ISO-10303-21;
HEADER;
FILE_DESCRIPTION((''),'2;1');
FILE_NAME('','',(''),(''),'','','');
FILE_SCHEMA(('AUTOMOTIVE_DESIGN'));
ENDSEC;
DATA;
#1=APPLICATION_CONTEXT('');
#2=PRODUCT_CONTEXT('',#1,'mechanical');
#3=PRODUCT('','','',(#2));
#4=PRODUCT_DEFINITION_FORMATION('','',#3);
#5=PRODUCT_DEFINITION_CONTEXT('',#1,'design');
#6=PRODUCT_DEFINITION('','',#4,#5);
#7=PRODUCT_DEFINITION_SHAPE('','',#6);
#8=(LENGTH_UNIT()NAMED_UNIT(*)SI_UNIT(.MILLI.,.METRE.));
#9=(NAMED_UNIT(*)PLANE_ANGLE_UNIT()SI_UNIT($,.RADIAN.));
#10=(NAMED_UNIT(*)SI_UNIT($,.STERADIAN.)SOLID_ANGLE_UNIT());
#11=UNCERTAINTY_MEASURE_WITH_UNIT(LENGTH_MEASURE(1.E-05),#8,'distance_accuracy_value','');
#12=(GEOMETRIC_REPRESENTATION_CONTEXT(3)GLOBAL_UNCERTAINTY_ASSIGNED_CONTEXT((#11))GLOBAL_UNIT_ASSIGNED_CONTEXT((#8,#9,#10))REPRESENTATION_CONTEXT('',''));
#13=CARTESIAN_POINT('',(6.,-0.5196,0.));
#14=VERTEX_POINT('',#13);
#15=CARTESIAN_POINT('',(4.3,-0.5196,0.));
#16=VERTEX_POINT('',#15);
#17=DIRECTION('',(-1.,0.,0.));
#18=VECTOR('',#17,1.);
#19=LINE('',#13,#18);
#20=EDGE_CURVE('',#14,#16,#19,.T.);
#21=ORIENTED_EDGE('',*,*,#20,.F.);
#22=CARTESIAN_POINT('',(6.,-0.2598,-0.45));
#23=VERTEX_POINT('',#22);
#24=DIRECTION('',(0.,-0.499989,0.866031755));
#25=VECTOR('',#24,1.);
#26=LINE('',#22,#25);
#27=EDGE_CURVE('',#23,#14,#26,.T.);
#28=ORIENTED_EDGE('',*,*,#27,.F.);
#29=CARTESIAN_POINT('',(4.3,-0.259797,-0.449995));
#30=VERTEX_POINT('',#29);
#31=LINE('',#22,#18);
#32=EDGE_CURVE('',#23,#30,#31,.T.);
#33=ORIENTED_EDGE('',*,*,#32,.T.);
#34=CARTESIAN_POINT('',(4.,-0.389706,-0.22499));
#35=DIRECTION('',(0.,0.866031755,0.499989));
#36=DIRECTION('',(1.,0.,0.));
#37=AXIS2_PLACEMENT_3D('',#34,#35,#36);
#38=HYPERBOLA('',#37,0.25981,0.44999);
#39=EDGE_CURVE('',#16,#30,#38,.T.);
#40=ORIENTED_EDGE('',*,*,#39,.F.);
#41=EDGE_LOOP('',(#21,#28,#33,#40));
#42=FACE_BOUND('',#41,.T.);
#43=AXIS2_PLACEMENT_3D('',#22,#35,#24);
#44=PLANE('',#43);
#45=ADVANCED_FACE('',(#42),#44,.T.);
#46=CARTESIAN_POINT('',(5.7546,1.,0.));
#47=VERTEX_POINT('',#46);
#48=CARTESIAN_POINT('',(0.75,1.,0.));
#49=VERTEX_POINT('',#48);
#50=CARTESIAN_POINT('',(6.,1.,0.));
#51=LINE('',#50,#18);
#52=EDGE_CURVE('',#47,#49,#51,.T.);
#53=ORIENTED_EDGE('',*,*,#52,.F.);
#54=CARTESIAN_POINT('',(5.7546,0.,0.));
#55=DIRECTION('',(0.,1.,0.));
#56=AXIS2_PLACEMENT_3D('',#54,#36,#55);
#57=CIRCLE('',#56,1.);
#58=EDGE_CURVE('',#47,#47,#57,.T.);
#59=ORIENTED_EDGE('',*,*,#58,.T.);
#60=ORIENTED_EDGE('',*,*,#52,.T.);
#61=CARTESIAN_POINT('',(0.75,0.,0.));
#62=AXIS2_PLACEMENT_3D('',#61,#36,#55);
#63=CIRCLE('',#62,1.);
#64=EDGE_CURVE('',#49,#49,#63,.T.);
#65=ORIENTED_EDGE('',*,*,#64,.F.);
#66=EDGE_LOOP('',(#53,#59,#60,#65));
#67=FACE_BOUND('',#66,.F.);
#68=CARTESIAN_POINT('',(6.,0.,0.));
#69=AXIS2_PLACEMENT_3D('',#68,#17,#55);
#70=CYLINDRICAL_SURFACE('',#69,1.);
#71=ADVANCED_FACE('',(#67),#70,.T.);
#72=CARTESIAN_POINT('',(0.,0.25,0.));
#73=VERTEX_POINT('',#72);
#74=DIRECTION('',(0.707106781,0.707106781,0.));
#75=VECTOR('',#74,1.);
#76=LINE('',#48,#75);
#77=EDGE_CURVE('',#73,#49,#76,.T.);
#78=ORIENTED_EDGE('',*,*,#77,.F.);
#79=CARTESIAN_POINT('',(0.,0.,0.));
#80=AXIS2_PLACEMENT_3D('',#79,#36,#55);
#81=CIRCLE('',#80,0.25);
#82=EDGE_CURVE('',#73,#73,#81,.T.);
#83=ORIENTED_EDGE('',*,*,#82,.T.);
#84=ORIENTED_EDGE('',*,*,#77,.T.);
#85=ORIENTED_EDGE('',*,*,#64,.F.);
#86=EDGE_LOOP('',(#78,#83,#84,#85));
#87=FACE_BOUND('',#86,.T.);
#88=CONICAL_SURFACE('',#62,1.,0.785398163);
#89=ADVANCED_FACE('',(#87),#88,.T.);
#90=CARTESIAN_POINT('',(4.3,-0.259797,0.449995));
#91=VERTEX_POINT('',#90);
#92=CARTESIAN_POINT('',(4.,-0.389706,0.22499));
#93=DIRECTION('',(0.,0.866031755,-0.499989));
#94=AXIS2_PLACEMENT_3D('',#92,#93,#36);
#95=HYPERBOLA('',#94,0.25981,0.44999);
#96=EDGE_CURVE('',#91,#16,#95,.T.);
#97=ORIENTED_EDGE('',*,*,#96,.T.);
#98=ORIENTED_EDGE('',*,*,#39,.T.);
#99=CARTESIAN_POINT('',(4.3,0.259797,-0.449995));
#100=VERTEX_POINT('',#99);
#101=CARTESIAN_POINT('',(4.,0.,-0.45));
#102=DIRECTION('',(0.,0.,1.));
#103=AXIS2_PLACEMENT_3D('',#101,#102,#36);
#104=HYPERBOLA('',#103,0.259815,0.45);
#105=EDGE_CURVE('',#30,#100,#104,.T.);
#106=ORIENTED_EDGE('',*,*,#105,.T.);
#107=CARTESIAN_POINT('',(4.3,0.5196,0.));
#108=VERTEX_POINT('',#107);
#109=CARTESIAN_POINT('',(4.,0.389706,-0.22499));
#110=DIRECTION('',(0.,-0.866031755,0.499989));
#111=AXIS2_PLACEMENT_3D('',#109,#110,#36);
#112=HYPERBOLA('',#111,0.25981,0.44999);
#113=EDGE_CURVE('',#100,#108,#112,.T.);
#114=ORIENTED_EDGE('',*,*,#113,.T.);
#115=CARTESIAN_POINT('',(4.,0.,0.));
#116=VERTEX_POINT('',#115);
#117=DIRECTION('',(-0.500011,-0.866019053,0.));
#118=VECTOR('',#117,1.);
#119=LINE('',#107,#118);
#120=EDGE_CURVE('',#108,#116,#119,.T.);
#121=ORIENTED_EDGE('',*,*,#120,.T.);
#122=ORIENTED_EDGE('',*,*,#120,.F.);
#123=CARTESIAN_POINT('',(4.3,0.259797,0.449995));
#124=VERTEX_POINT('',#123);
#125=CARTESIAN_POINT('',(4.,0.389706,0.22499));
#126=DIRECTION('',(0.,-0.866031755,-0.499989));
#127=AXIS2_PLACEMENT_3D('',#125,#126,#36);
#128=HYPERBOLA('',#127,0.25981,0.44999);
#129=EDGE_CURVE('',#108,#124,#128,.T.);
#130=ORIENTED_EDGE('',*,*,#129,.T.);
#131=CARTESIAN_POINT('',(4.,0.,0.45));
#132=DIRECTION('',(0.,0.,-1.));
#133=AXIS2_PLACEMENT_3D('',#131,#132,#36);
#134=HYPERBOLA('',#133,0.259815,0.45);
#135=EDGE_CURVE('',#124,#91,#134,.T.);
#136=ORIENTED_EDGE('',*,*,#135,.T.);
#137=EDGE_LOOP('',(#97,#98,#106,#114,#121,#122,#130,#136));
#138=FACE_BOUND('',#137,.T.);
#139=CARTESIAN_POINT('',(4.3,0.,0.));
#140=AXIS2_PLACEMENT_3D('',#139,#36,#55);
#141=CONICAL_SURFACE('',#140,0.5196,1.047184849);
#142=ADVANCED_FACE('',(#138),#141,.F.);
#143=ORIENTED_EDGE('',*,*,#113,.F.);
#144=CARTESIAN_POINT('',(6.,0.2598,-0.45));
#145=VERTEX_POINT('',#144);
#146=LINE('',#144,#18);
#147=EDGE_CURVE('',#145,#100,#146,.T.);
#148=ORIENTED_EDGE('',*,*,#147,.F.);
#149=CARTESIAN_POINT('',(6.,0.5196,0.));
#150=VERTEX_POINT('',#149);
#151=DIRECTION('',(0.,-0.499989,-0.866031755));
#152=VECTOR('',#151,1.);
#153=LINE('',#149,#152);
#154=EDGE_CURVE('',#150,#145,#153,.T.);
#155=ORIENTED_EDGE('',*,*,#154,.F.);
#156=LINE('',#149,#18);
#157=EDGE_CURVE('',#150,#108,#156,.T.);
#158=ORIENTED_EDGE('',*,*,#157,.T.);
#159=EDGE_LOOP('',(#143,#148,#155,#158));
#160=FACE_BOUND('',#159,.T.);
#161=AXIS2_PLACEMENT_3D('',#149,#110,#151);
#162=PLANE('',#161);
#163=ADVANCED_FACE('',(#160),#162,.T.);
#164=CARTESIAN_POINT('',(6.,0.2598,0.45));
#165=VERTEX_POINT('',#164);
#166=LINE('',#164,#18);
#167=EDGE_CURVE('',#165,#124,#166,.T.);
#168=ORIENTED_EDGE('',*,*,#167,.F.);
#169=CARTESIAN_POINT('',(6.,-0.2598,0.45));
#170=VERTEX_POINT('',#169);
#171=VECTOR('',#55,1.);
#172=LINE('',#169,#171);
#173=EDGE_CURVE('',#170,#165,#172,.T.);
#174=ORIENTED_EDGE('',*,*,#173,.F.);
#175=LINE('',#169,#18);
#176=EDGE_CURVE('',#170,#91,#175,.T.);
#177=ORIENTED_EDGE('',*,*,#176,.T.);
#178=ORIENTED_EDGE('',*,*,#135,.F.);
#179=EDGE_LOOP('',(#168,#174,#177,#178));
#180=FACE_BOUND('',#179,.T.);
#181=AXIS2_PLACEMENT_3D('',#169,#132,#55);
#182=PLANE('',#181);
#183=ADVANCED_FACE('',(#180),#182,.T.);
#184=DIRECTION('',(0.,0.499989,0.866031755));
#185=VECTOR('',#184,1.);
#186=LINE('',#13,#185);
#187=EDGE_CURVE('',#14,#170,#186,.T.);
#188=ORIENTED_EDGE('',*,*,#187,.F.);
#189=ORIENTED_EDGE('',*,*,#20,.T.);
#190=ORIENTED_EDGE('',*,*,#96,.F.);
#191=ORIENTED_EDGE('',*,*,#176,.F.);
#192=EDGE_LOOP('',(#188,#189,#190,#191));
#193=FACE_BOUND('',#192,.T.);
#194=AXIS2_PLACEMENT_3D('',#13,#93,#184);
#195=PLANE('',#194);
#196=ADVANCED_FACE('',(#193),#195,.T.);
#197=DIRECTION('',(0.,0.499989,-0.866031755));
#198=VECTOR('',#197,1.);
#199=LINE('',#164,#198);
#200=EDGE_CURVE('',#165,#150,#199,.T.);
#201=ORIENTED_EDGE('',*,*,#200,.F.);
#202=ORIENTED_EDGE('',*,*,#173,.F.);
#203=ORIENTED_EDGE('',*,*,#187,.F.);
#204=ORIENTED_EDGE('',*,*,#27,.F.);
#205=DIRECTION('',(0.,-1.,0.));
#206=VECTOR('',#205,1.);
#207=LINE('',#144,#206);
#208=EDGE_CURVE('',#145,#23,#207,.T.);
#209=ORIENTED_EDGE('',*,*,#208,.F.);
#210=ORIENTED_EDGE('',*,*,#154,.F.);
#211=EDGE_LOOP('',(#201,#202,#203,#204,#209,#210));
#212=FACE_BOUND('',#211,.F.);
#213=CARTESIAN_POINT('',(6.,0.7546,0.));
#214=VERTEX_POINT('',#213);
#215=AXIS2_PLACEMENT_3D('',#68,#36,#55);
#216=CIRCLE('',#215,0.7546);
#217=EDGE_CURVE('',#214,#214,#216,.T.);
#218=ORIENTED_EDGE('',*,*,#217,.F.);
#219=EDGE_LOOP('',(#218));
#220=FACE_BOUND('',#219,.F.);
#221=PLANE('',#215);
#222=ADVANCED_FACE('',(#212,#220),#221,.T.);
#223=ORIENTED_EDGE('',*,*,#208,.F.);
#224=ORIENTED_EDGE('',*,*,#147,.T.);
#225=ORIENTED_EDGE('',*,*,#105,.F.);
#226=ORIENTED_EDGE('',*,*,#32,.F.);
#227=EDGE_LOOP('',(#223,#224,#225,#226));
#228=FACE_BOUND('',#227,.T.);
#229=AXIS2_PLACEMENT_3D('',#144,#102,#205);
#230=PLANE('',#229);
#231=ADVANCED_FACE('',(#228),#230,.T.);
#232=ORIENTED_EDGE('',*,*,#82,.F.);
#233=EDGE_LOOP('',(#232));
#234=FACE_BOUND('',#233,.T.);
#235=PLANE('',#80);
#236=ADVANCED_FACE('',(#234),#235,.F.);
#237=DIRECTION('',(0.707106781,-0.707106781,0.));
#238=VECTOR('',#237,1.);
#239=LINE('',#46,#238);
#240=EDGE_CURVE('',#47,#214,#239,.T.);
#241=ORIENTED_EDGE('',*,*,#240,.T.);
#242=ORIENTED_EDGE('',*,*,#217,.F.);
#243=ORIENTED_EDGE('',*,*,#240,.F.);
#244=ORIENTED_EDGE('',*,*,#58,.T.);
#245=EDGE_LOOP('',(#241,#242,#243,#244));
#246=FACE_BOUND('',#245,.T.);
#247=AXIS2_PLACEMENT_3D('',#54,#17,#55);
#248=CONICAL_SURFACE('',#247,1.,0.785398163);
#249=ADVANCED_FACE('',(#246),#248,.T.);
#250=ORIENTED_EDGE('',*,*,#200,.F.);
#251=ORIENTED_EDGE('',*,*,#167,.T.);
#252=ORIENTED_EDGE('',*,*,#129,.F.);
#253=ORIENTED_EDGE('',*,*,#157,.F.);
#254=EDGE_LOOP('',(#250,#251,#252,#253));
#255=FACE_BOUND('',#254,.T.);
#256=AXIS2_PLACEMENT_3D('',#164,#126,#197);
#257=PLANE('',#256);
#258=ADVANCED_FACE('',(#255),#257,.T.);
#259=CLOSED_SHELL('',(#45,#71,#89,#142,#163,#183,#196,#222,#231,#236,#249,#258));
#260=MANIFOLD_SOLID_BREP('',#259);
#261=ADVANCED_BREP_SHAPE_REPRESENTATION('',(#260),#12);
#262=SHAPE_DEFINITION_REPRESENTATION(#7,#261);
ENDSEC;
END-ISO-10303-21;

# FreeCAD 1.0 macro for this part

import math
import FreeCAD as App
import Part
import Sketcher

V = App.Vector
Q = App.Units.Quantity


def edges_at(feature, points):
    """Names of the edges that pass closest to the given points."""
    edges = feature.Shape.Edges
    near = lambda p: min(range(len(edges)), key=lambda i: edges[i].distToShape(Part.Vertex(*p))[0])
    return sorted({f"Edge{near(p) + 1}" for p in points})

doc = App.newDocument("Part")
body = doc.addObject("PartDesign::Body", "Body")

# Sketch on XY plane
sketch1 = doc.addObject("Sketcher::SketchObject", "Sketch")
body.addObject(sketch1)
sketch1.AttachmentSupport = (doc.XY_Plane, [""])
sketch1.MapMode = "FlatFace"
sketch1.addGeometry([
    Part.LineSegment(V(0, 1, 0), V(0, 0, 0)),  # 0
    Part.LineSegment(V(0, 0, 0), V(4, 0, 0)),  # 1
    Part.LineSegment(V(4, 0, 0), V(4.3, 0.5196, 0)),  # 2
    Part.LineSegment(V(4.3, 0.5196, 0), V(6, 0.5196, 0)),  # 3
    Part.LineSegment(V(6, 0.5196, 0), V(6, 1, 0)),  # 4
    Part.LineSegment(V(6, 1, 0), V(0, 1, 0)),  # 5
], False)
sketch1.addConstraint([
    Sketcher.Constraint("Coincident", 0, 2, 1, 1),
    Sketcher.Constraint("Coincident", 1, 2, 2, 1),
    Sketcher.Constraint("Coincident", 2, 2, 3, 1),
    Sketcher.Constraint("Coincident", 3, 2, 4, 1),
    Sketcher.Constraint("Coincident", 4, 2, 5, 1),
    Sketcher.Constraint("Coincident", 5, 2, 0, 1),
    Sketcher.Constraint("Vertical", 0),
    Sketcher.Constraint("Horizontal", 1),
    Sketcher.Constraint("Horizontal", 3),
    Sketcher.Constraint("Vertical", 4),
    Sketcher.Constraint("Horizontal", 5),
    Sketcher.Constraint("Coincident", 0, 2, -1, 1),
    Sketcher.Constraint("DistanceX", 5, 2, 5, 1, Q("6 mm")),
    Sketcher.Constraint("DistanceX", 3, 1, 3, 2, Q("1.7 mm")),
    Sketcher.Constraint("DistanceX", 1, 2, 3, 2, Q("2 mm")),
    Sketcher.Constraint("DistanceY", 0, 2, 0, 1, Q("1 mm")),
    Sketcher.Constraint("Angle", 2, Q("59.9993 deg")),
])
revolution = doc.addObject("PartDesign::Revolution", "Revolution")
body.addObject(revolution)
revolution.Profile = sketch1
revolution.ReferenceAxis = (sketch1, ["H_Axis"])
revolution.Angle = 360

# Sketch on YZ plane
sketch2 = doc.addObject("Sketcher::SketchObject", "Sketch001")
body.addObject(sketch2)
sketch2.AttachmentSupport = (doc.YZ_Plane, [""])
sketch2.MapMode = "FlatFace"
sketch2.AttachmentOffset = App.Placement(V(0, 0, 6), App.Rotation())
sketch2.addGeometry([
    Part.LineSegment(V(0.2598, 0.45, 0), V(0.5196, 0, 0)),  # 0
    Part.ArcOfCircle(Part.Circle(V(0, 0, 0), V(0, 0, 1), 0.5196), math.radians(0), math.radians(60.000728)),  # 1
    Part.ArcOfCircle(Part.Circle(V(0, 0, 0), V(0, 0, 1), 0.5196), math.radians(-60.000728), math.radians(0)),  # 2
    Part.LineSegment(V(0.5196, 0, 0), V(0.2598, -0.45, 0)),  # 3
    Part.LineSegment(V(-0.2598, 0.45, 0), V(0.2598, 0.45, 0)),  # 4
    Part.ArcOfCircle(Part.Circle(V(0, 0, 0), V(0, 0, 1), 0.5196), math.radians(60.000728), math.radians(119.999272)),  # 5
    Part.ArcOfCircle(Part.Circle(V(0, 0, 0), V(0, 0, 1), 0.5196), math.radians(-119.999272), math.radians(-60.000728)),  # 6
    Part.LineSegment(V(-0.2598, -0.45, 0), V(0.2598, -0.45, 0)),  # 7
    Part.LineSegment(V(-0.5196, 0, 0), V(-0.2598, 0.45, 0)),  # 8
    Part.ArcOfCircle(Part.Circle(V(0, 0, 0), V(0, 0, 1), 0.5196), math.radians(119.999272), math.radians(180)),  # 9
    Part.ArcOfCircle(Part.Circle(V(0, 0, 0), V(0, 0, 1), 0.5196), math.radians(180), math.radians(240.000728)),  # 10
    Part.LineSegment(V(-0.5196, 0, 0), V(-0.2598, -0.45, 0)),  # 11
], False)
sketch2.addConstraint([
    Sketcher.Constraint("Coincident", 0, 1, 1, 2),
    Sketcher.Constraint("Coincident", 1, 1, 0, 2),
    Sketcher.Constraint("Coincident", 2, 1, 3, 2),
    Sketcher.Constraint("Coincident", 3, 1, 2, 2),
    Sketcher.Constraint("Coincident", 4, 1, 5, 2),
    Sketcher.Constraint("Coincident", 5, 1, 4, 2),
    Sketcher.Constraint("Coincident", 6, 1, 7, 1),
    Sketcher.Constraint("Coincident", 7, 2, 6, 2),
    Sketcher.Constraint("Coincident", 8, 1, 9, 2),
    Sketcher.Constraint("Coincident", 9, 1, 8, 2),
    Sketcher.Constraint("Coincident", 10, 1, 11, 1),
    Sketcher.Constraint("Coincident", 11, 2, 10, 2),
    Sketcher.Constraint("Horizontal", 4),
    Sketcher.Constraint("Horizontal", 7),
    Sketcher.Constraint("Coincident", 1, 3, -1, 1),
    Sketcher.Constraint("Coincident", 2, 3, -1, 1),
    Sketcher.Constraint("Coincident", 5, 3, -1, 1),
    Sketcher.Constraint("Coincident", 6, 3, -1, 1),
    Sketcher.Constraint("Coincident", 9, 3, -1, 1),
    Sketcher.Constraint("Coincident", 10, 3, -1, 1),
    Sketcher.Constraint("Coincident", 3, 1, 1, 1),
    Sketcher.Constraint("Coincident", 5, 1, 0, 1),
    Sketcher.Constraint("Coincident", 7, 2, 2, 1),
    Sketcher.Constraint("Coincident", 9, 1, 4, 1),
    Sketcher.Constraint("Coincident", 10, 1, 8, 1),
    Sketcher.Constraint("PointOnObject", 1, 1, -1),
    Sketcher.Constraint("PointOnObject", 8, 1, -1),
    Sketcher.Constraint("Parallel", 3, 8),
    Sketcher.Constraint("Parallel", 0, 11),
    Sketcher.Constraint("Angle", 0, Q("-60.0007 deg")),
    Sketcher.Constraint("Radius", 1, Q("0.5196 mm")),
])
pad1 = doc.addObject("PartDesign::Pad", "Pad")
body.addObject(pad1)
pad1.Profile = sketch2
pad1.Type = "UpToFirst"
pad1.Reversed = True
doc.recompute()

chamfer = doc.addObject("PartDesign::Chamfer", "Chamfer")
body.addObject(chamfer)
chamfer.Base = (pad1, edges_at(pad1, [(0, -1, 0)]))
chamfer.Size = 0.75
doc.recompute()

chamfer2 = doc.addObject("PartDesign::Chamfer", "Chamfer001")
body.addObject(chamfer2)
chamfer2.Base = (chamfer, edges_at(chamfer, [(6, -1, 0)]))
chamfer2.Size = 0.2454

doc.recompute()
